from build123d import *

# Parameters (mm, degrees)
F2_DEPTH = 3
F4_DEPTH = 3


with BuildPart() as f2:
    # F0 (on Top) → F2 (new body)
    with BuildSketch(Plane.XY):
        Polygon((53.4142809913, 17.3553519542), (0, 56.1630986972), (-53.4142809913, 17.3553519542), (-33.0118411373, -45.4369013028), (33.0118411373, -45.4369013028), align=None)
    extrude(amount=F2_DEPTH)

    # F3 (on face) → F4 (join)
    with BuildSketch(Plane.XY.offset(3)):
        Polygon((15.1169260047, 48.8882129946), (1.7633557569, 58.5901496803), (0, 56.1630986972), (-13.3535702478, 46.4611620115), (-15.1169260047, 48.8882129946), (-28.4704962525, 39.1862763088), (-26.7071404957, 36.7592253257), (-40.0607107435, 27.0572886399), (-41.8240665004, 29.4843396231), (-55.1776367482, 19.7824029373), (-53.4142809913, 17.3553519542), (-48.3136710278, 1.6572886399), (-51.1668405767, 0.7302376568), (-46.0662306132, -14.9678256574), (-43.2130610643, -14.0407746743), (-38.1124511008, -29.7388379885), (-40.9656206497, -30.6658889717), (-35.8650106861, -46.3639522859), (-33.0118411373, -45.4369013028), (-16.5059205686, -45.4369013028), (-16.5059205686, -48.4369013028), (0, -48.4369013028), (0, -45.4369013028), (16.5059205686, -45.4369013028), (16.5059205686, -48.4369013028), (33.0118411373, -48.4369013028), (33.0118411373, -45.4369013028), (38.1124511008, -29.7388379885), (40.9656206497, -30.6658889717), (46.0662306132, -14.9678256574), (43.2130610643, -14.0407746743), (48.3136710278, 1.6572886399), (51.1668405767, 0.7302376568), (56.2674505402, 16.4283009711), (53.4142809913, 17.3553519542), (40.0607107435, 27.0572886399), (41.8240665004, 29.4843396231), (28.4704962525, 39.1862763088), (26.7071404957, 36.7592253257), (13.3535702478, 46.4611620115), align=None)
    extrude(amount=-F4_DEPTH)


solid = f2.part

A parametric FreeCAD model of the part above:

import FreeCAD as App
import Part
import Sketcher
Q = App.Units.Quantity


def add_polygon(sketch, points):
    """Adds a closed chain of lines whose ends are joined by coincident constraints."""
    first, n = sketch.GeometryCount, len(points)
    for a, b in zip(points, points[1:] + points[:1]):
        sketch.addGeometry(Part.LineSegment(App.Vector(*a, 0), App.Vector(*b, 0)), False)
    for i in range(n):
        sketch.addConstraint(Sketcher.Constraint("Coincident", first + i, 2, first + (i + 1) % n, 1))

doc = App.newDocument("Part")
body = doc.addObject("PartDesign::Body", "Body")

# Sketch on XY plane
sketch1 = body.newObject("Sketcher::SketchObject", "Sketch")
sketch1.AttachmentSupport = (doc.getObject("XY_Plane"), [""])
sketch1.MapMode = "FlatFace"
add_polygon(sketch1, [(53, 17), (0, 56), (-53, 17), (-33, -45), (33, -45)])  # lines 0-4
sketch1.addConstraint([
    Sketcher.Constraint("Horizontal", 3),
    Sketcher.Constraint("Symmetric", 1, 2, 4, 2, -2),
    Sketcher.Constraint("PointOnObject", 0, 2, -2),
    Sketcher.Constraint("Equal", 1, 2),
    Sketcher.Constraint("Equal", 2, 4),
    Sketcher.Constraint("Angle", 0, Q("144 deg")),
    Sketcher.Constraint("Angle", 2, Q("-72 deg")),
    Sketcher.Constraint("DistanceY", 2, 2, 0, 2, 101.6),
    Sketcher.Constraint("DistanceY", -1, 1, 0, 2, 56.163099),
])
pad1 = body.newObject("PartDesign::Pad", "Pad")
pad1.Profile = sketch1
pad1.Length = 3

# Sketch on XY plane
sketch2 = body.newObject("Sketcher::SketchObject", "Sketch001")
sketch2.AttachmentSupport = (doc.getObject("XY_Plane"), [""])
sketch2.MapMode = "FlatFace"
sketch2.AttachmentOffset = App.Placement(App.Vector(0, 0, 3), App.Rotation())
add_polygon(sketch2, [(15.1, 48.9), (1.8, 58.6), (0, 56.2), (-13.4, 46.5), (-15.1, 48.9), (-28.5, 39.2), (-26.7, 36.8), (-40.1, 27.1), (-41.8, 29.5), (-55.2, 19.8), (-53.4, 17.4), (-48.3, 1.7), (-51.2, 0.7), (-46.1, -15), (-43.2, -14), (-38.1, -29.7), (-41, -30.7), (-35.9, -46.4), (-33, -45.4), (-16.5, -45.4), (-16.5, -48.4), (0, -48.4), (0, -45.4), (16.5, -45.4), (16.5, -48.4), (33, -48.4), (33, -45.4), (38.1, -29.7), (41, -30.7), (46.1, -15), (43.2, -14), (48.3, 1.7), (51.2, 0.7), (56.3, 16.4), (53.4, 17.4), (40.1, 27.1), (41.8, 29.5), (28.5, 39.2), (26.7, 36.8), (13.4, 46.5)])  # lines 0-39
sketch2.addConstraint([
    Sketcher.Constraint("Horizontal", 18),
    Sketcher.Constraint("Vertical", 19),
    Sketcher.Constraint("Horizontal", 20),
    Sketcher.Constraint("Vertical", 21),
    Sketcher.Constraint("Horizontal", 22),
    Sketcher.Constraint("Vertical", 23),
    Sketcher.Constraint("Horizontal", 24),
    Sketcher.Constraint("Vertical", 25),
    Sketcher.Constraint("Symmetric", 18, 2, 22, 2, -2),
    Sketcher.Constraint("Symmetric", 17, 2, 25, 2, -2),
    Sketcher.Constraint("Symmetric", 14, 2, 26, 2, -2),
    Sketcher.Constraint("Symmetric", 15, 2, 27, 2, -2),
    Sketcher.Constraint("Symmetric", 12, 2, 28, 2, -2),
    Sketcher.Constraint("Symmetric", 13, 2, 29, 2, -2),
    Sketcher.Constraint("Symmetric", 10, 2, 30, 2, -2),
    Sketcher.Constraint("Symmetric", 11, 2, 31, 2, -2),
    Sketcher.Constraint("Symmetric", 9, 2, 33, 2, -2),
    Sketcher.Constraint("Symmetric", 6, 2, 34, 2, -2),
    Sketcher.Constraint("Symmetric", 7, 2, 35, 2, -2),
    Sketcher.Constraint("Symmetric", 4, 2, 36, 2, -2),
    Sketcher.Constraint("Symmetric", 5, 2, 37, 2, -2),
    Sketcher.Constraint("Symmetric", 2, 2, 38, 2, -2),
    Sketcher.Constraint("Symmetric", 3, 2, 39, 2, -2),
    Sketcher.Constraint("PointOnObject", 1, 2, -2),
    Sketcher.Constraint("PointOnObject", 20, 2, -2),
    Sketcher.Constraint("Perpendicular", 0, 1),
    Sketcher.Constraint("Perpendicular", 2, 3),
    Sketcher.Constraint("Perpendicular", 3, 4),
    Sketcher.Constraint("Perpendicular", 4, 5),
    Sketcher.Constraint("Perpendicular", 5, 6),
    Sketcher.Constraint("Perpendicular", 6, 7),
    Sketcher.Constraint("Perpendicular", 7, 8),
    Sketcher.Constraint("Perpendicular", 8, 9),
    Sketcher.Constraint("Perpendicular", 10, 11),
    Sketcher.Constraint("Perpendicular", 11, 12),
    Sketcher.Constraint("Perpendicular", 12, 13),
    Sketcher.Constraint("Perpendicular", 13, 14),
    Sketcher.Constraint("Perpendicular", 14, 15),
    Sketcher.Constraint("Perpendicular", 15, 16),
    Sketcher.Constraint("Perpendicular", 16, 17),
    Sketcher.Constraint("Perpendicular", 26, 27),
    Sketcher.Constraint("Perpendicular", 27, 28),
    Sketcher.Constraint("Perpendicular", 29, 30),
    Sketcher.Constraint("Perpendicular", 31, 32),
    Sketcher.Constraint("Perpendicular", 32, 33),
    Sketcher.Constraint("Perpendicular", 1, 34),
    Sketcher.Constraint("Perpendicular", 34, 35),
    Sketcher.Constraint("Perpendicular", 35, 36),
    Sketcher.Constraint("Perpendicular", 37, 38),
    Sketcher.Constraint("Horizontal", 20, 2, 23, 2),
    Sketcher.Constraint("Equal", 18, 20),
    Sketcher.Constraint("Equal", 2, 4),
    Sketcher.Constraint("Equal", 4, 6),
    Sketcher.Constraint("Equal", 6, 8),
    Sketcher.Constraint("Equal", 8, 10),
    Sketcher.Constraint("Equal", 9, 11),
    Sketcher.Constraint("Equal", 10, 12),
    Sketcher.Constraint("Equal", 12, 14),
    Sketcher.Constraint("Equal", 14, 16),
    Sketcher.Constraint("DistanceY", 19, 2, 19, 1, 3.0),
    Sketcher.Constraint("Angle", 0, Q("144 deg")),
    Sketcher.Constraint("Angle", 10, Q("-72 deg")),
    Sketcher.Constraint("Distance", 1, 3.0),
    Sketcher.Constraint("DistanceY", 10, 2, 6, 2, 25.4),
    Sketcher.Constraint("DistanceY", -1, 1, 1, 2, 56.163099),
])
pad2 = body.newObject("PartDesign::Pad", "Pad001")
pad2.Profile = sketch2
pad2.Length = 3
pad2.Reversed = True

doc.recompute()
